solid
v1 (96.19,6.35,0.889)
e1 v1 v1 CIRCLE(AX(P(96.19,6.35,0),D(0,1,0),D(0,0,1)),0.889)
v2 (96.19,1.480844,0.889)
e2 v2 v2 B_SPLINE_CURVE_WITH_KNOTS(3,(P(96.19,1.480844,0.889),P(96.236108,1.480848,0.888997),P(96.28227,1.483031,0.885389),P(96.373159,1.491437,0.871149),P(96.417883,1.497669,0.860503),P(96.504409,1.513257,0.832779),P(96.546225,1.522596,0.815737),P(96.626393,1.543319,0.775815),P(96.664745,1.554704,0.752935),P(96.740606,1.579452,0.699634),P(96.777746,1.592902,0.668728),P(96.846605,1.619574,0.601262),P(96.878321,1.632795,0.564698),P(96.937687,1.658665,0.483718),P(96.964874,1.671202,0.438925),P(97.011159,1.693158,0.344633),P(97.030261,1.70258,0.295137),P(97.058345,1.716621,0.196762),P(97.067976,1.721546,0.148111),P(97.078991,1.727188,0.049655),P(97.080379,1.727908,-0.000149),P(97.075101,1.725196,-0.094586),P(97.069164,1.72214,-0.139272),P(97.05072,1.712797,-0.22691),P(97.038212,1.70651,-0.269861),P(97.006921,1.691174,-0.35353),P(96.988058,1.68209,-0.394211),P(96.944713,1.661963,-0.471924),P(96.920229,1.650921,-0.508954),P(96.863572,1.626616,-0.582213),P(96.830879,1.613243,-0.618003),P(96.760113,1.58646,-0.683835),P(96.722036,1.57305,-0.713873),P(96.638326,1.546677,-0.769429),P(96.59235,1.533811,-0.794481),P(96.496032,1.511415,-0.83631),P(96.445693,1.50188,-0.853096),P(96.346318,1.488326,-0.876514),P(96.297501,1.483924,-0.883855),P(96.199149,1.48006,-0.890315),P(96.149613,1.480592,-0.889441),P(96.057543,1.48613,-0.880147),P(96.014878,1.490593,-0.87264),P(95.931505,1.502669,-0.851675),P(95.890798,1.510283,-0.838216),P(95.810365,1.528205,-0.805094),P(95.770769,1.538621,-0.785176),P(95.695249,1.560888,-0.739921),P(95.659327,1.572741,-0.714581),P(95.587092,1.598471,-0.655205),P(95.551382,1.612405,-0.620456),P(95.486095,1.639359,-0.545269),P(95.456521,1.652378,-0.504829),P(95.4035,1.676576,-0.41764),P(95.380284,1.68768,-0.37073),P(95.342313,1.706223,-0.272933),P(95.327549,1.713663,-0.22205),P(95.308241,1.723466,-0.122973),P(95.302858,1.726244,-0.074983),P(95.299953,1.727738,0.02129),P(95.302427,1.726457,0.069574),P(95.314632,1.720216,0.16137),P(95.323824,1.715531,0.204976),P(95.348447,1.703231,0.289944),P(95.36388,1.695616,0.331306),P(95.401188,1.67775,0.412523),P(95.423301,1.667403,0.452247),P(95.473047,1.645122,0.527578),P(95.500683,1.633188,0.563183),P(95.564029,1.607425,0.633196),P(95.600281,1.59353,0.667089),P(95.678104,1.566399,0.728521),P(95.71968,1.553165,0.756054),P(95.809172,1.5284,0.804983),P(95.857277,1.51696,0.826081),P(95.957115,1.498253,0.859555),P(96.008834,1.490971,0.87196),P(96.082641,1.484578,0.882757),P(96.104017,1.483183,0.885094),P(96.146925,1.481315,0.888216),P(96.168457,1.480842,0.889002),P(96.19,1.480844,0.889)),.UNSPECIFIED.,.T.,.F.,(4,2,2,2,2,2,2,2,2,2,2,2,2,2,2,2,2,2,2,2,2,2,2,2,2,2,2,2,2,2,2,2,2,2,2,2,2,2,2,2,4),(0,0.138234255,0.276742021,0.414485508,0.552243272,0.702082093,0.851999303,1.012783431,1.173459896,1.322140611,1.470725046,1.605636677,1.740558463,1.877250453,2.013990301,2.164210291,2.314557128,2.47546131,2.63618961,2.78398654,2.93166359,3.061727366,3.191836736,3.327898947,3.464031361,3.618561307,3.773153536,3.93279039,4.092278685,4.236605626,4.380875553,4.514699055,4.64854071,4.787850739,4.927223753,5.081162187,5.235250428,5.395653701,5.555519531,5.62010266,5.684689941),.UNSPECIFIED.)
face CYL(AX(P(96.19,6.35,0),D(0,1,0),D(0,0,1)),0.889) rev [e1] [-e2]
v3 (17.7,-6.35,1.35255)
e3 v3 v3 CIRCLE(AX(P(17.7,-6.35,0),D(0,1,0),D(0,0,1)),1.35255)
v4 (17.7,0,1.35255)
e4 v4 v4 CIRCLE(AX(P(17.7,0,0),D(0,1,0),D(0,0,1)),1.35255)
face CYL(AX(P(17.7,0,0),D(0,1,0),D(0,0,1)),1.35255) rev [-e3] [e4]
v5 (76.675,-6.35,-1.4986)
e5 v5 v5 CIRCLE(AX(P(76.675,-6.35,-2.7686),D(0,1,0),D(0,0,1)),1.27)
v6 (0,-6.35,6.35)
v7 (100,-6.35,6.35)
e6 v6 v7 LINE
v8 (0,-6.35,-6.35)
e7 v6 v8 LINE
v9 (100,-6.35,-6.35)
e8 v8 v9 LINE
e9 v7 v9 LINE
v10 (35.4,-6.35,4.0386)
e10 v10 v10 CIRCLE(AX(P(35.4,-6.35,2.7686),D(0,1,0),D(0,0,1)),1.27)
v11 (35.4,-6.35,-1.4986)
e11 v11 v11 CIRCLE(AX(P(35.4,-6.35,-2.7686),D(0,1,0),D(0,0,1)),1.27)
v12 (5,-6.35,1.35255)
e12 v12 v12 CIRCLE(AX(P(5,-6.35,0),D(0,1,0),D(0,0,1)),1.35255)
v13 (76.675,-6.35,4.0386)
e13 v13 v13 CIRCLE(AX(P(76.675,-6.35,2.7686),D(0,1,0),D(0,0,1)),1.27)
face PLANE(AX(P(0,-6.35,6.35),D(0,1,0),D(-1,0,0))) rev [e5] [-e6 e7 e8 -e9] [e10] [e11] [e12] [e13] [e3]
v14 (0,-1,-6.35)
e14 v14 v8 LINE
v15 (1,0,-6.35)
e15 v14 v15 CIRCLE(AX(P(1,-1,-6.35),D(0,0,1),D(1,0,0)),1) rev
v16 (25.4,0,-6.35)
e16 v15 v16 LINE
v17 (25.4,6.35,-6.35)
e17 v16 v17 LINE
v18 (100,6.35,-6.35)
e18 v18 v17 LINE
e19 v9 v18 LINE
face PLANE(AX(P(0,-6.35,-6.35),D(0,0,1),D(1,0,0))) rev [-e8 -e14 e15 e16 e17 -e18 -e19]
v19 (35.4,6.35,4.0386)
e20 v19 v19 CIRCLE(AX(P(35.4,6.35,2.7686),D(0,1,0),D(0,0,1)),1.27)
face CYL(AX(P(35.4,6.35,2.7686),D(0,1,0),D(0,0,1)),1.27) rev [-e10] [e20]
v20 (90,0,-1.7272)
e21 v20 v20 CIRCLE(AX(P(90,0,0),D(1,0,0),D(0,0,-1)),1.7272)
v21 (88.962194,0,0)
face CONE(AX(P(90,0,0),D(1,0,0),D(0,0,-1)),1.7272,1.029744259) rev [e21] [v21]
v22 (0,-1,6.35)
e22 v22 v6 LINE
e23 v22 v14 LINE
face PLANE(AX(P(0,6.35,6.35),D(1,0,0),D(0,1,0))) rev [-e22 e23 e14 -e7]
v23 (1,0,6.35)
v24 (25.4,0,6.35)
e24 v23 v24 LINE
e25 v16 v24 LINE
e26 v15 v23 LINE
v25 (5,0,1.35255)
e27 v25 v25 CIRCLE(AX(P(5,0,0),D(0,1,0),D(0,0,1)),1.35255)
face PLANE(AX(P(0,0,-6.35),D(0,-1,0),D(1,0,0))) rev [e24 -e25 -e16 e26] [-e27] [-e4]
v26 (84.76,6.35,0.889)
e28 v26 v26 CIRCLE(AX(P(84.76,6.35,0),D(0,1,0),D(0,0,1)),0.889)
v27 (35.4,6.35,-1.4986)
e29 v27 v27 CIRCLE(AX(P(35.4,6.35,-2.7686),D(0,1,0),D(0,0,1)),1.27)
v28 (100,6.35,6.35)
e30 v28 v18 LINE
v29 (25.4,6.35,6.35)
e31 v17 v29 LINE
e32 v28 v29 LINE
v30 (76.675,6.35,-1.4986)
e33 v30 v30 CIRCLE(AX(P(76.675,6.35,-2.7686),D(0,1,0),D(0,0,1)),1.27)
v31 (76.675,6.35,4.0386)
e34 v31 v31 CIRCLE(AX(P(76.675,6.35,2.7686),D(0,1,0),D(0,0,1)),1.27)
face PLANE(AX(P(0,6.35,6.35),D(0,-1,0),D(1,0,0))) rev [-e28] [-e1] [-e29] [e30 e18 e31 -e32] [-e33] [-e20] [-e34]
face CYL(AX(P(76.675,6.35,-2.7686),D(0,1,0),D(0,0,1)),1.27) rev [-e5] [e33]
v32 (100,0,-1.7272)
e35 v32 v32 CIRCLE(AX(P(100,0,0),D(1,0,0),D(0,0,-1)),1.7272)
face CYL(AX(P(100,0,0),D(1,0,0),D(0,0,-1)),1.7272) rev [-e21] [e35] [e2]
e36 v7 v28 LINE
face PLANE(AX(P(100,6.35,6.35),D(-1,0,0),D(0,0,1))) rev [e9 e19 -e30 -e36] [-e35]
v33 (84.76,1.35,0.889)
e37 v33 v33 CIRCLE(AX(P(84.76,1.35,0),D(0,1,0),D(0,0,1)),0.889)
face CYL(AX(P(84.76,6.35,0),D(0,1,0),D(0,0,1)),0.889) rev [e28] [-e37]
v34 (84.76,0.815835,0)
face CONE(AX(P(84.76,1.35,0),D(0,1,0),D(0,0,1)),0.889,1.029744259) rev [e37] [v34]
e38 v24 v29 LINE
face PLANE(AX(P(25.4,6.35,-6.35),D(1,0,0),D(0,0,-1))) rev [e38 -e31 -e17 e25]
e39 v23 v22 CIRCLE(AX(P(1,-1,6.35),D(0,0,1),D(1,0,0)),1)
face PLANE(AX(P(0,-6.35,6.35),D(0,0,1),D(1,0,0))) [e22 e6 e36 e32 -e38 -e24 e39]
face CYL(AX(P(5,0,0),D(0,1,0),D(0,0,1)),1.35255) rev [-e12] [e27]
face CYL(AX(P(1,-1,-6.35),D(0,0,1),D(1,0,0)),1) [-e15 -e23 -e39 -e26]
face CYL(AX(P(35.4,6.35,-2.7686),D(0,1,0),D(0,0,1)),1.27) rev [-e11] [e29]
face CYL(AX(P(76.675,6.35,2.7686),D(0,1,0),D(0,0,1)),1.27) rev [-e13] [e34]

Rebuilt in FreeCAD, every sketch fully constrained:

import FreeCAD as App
import Part
import Sketcher
from FreeCAD import Vector
Q = App.Units.Quantity


def edges_at(feature, points):
    """Names of the edges that pass closest to the given points."""
    edges = feature.Shape.Edges
    near = lambda p: min(range(len(edges)), key=lambda i: edges[i].distToShape(Part.Vertex(*p))[0])
    return sorted({f"Edge{near(p) + 1}" for p in points})


def add_polygon(sketch, points):
    """Adds a closed chain of lines whose ends are joined by coincident constraints."""
    first, n = sketch.GeometryCount, len(points)
    for a, b in zip(points, points[1:] + points[:1]):
        sketch.addGeometry(Part.LineSegment(App.Vector(*a, 0), App.Vector(*b, 0)), False)
    for i in range(n):
        sketch.addConstraint(Sketcher.Constraint("Coincident", first + i, 2, first + (i + 1) % n, 1))

doc = App.newDocument("Part")
body = doc.addObject("PartDesign::Body", "Body")

sketch1 = doc.addObject("Sketcher::SketchObject", "Sketch")
body.addObject(sketch1)
sketch1.AttachmentSupport = (doc.XY_Plane, [""])
sketch1.MapMode = "FlatFace"
add_polygon(sketch1, [(0, 6), (0, -6), (100, -6), (100, 6)])
sketch1.addConstraint([
    Sketcher.Constraint("Vertical", 0),
    Sketcher.Constraint("Horizontal", 1),
    Sketcher.Constraint("Vertical", 2),
    Sketcher.Constraint("Horizontal", 3),
    Sketcher.Constraint("Symmetric", 0, 2, 3, 2, -1, 1),
    Sketcher.Constraint("DistanceY", 0, 2, 0, 1, Q("0.5 in")),
    Sketcher.Constraint("DistanceX", 1, 1, 1, 2, 100.0),
])
pad1 = doc.addObject("PartDesign::Pad", "Pad")
body.addObject(pad1)
pad1.Profile = sketch1
pad1.Length = Q("0.5 in")
pad1.Midplane = True

sketch2 = doc.addObject("Sketcher::SketchObject", "Sketch001")
body.addObject(sketch2)
sketch2.AttachmentSupport = (doc.XY_Plane, [""])
sketch2.MapMode = "FlatFace"
sketch2.AttachmentOffset = App.Placement(Vector(0, 0, 0.25 * 25.4), App.Rotation())
add_polygon(sketch2, [(0, 6), (0, 0), (25, 0), (25, 6)])
sketch2.addConstraint([
    Sketcher.Constraint("Vertical", 0),
    Sketcher.Constraint("Horizontal", 1),
    Sketcher.Constraint("Vertical", 2),
    Sketcher.Constraint("Horizontal", 3),
    Sketcher.Constraint("Coincident", 0, 2, -1, 1),
    Sketcher.Constraint("DistanceX", 1, 1, 1, 2, Q("1 in")),
    Sketcher.Constraint("DistanceY", 0, 2, 0, 1, Q("0.25 in")),
])
pocket1 = doc.addObject("PartDesign::Pocket", "Pocket")
body.addObject(pocket1)
pocket1.Profile = sketch2
pocket1.Type = "ThroughAll"

sketch3 = doc.addObject("Sketcher::SketchObject", "Sketch002")
body.addObject(sketch3)
sketch3.AttachmentSupport = (doc.XZ_Plane, [""])
sketch3.MapMode = "FlatFace"
sketch3.addGeometry([
    Part.Circle(Vector(17.7, 0, 0), Vector(0, 0, 1), 1.4),
    Part.Circle(Vector(5, 0, 0), Vector(0, 0, 1), 1.4),
], False)
sketch3.addConstraint([
    Sketcher.Constraint("Equal", 0, 1),
    Sketcher.Constraint("PointOnObject", 0, 3, -1),
    Sketcher.Constraint("PointOnObject", 1, 3, -1),
    Sketcher.Constraint("Diameter", 0, Q("0.1065 in")),
    Sketcher.Constraint("DistanceX", 1, 3, 0, 3, Q("0.5 in")),
    Sketcher.Constraint("DistanceX", -1, 1, 0, 3, 17.7),
])
doc.recompute()
hole = doc.addObject("PartDesign::Hole", "Hole")
body.addObject(hole)
hole.Profile = sketch3
hole.ThreadType = "None"
hole.Diameter = Q("0.1065 in")
hole.DepthType = "ThroughAll"
hole.Reversed = True

sketch4 = doc.addObject("Sketcher::SketchObject", "Sketch003")
body.addObject(sketch4)
sketch4.AttachmentSupport = (doc.YZ_Plane, [""])
sketch4.MapMode = "FlatFace"
sketch4.AttachmentOffset = App.Placement(Vector(0, 0, 100), App.Rotation())
sketch4.addGeometry(Part.Circle(Vector(0, 0, 0), Vector(0, 0, 1), 1.7), False)
sketch4.addConstraint([
    Sketcher.Constraint("Coincident", 0, 3, -1, 1),
    Sketcher.Constraint("Diameter", 0, Q("0.136 in")),
])
doc.recompute()
hole2 = doc.addObject("PartDesign::Hole", "Hole001")
body.addObject(hole2)
hole2.Profile = sketch4
hole2.ThreadType = "None"
hole2.Diameter = Q("0.136 in")
hole2.DepthType = "Dimension"
hole2.Depth = 10
hole2.DrillPoint = "Angled"
hole2.DrillPointAngle = 118

sketch5 = doc.addObject("Sketcher::SketchObject", "Sketch004")
body.addObject(sketch5)
sketch5.AttachmentSupport = (doc.XZ_Plane, [""])
sketch5.MapMode = "FlatFace"
sketch5.AttachmentOffset = App.Placement(Vector(0, 0, -0.25 * 25.4), App.Rotation())
sketch5.addGeometry([
    Part.Circle(Vector(35.4, -2.8, 0), Vector(0, 0, 1), 1.3),
    Part.Circle(Vector(76.7, -2.8, 0), Vector(0, 0, 1), 1.3),
    Part.Circle(Vector(76.7, 2.8, 0), Vector(0, 0, 1), 1.3),
    Part.Circle(Vector(35.4, 2.8, 0), Vector(0, 0, 1), 1.3),
], False)
sketch5.addConstraint([
    Sketcher.Constraint("Equal", 0, 1),
    Sketcher.Constraint("Equal", 1, 2),
    Sketcher.Constraint("Equal", 2, 3),
    Sketcher.Constraint("Symmetric", 1, 3, 2, 3, -1),
    Sketcher.Constraint("Symmetric", 0, 3, 3, 3, -1),
    Sketcher.Constraint("Horizontal", 0, 3, 1, 3),
    Sketcher.Constraint("Diameter", 0, Q("0.1 in")),
    Sketcher.Constraint("DistanceY", 0, 3, -1, 1, Q("0.109 in")),
    Sketcher.Constraint("DistanceX", 0, 3, 1, 3, Q("1.625 in")),
    Sketcher.Constraint("DistanceX", -1, 1, 0, 3, 35.4),
])
doc.recompute()
hole3 = doc.addObject("PartDesign::Hole", "Hole002")
body.addObject(hole3)
hole3.Profile = sketch5
hole3.ThreadType = "None"
hole3.Diameter = Q("0.1 in")
hole3.DepthType = "ThroughAll"
hole3.Reversed = True

sketch6 = doc.addObject("Sketcher::SketchObject", "Sketch005")
body.addObject(sketch6)
sketch6.AttachmentSupport = (doc.XZ_Plane, [""])
sketch6.MapMode = "FlatFace"
sketch6.AttachmentOffset = App.Placement(Vector(0, 0, -0.25 * 25.4), App.Rotation())
sketch6.addGeometry([
    Part.Circle(Vector(84.8, 0, 0), Vector(0, 0, 1), 0.9),
    Part.Circle(Vector(96.2, 0, 0), Vector(0, 0, 1), 0.9),
], False)
sketch6.addConstraint([
    Sketcher.Constraint("Equal", 0, 1),
    Sketcher.Constraint("PointOnObject", 0, 3, -1),
    Sketcher.Constraint("PointOnObject", 1, 3, -1),
    Sketcher.Constraint("Diameter", 0, Q("0.07 in")),
    Sketcher.Constraint("DistanceX", 0, 3, 1, 3, Q("0.45 in")),
    Sketcher.Constraint("DistanceX", -1, 1, 0, 3, 84.76),
])
doc.recompute()
hole4 = doc.addObject("PartDesign::Hole", "Hole003")
body.addObject(hole4)
hole4.Profile = sketch6
hole4.ThreadType = "None"
hole4.Diameter = Q("0.07 in")
hole4.DepthType = "Dimension"
hole4.Depth = 5
hole4.DrillPoint = "Angled"
hole4.DrillPointAngle = 118
hole4.Reversed = True
doc.recompute()

fillet = doc.addObject("PartDesign::Fillet", "Fillet")
body.addObject(fillet)
fillet.Base = (hole4, edges_at(hole4, [(0, 0, 0)]))
fillet.Radius = 1

doc.recompute()
